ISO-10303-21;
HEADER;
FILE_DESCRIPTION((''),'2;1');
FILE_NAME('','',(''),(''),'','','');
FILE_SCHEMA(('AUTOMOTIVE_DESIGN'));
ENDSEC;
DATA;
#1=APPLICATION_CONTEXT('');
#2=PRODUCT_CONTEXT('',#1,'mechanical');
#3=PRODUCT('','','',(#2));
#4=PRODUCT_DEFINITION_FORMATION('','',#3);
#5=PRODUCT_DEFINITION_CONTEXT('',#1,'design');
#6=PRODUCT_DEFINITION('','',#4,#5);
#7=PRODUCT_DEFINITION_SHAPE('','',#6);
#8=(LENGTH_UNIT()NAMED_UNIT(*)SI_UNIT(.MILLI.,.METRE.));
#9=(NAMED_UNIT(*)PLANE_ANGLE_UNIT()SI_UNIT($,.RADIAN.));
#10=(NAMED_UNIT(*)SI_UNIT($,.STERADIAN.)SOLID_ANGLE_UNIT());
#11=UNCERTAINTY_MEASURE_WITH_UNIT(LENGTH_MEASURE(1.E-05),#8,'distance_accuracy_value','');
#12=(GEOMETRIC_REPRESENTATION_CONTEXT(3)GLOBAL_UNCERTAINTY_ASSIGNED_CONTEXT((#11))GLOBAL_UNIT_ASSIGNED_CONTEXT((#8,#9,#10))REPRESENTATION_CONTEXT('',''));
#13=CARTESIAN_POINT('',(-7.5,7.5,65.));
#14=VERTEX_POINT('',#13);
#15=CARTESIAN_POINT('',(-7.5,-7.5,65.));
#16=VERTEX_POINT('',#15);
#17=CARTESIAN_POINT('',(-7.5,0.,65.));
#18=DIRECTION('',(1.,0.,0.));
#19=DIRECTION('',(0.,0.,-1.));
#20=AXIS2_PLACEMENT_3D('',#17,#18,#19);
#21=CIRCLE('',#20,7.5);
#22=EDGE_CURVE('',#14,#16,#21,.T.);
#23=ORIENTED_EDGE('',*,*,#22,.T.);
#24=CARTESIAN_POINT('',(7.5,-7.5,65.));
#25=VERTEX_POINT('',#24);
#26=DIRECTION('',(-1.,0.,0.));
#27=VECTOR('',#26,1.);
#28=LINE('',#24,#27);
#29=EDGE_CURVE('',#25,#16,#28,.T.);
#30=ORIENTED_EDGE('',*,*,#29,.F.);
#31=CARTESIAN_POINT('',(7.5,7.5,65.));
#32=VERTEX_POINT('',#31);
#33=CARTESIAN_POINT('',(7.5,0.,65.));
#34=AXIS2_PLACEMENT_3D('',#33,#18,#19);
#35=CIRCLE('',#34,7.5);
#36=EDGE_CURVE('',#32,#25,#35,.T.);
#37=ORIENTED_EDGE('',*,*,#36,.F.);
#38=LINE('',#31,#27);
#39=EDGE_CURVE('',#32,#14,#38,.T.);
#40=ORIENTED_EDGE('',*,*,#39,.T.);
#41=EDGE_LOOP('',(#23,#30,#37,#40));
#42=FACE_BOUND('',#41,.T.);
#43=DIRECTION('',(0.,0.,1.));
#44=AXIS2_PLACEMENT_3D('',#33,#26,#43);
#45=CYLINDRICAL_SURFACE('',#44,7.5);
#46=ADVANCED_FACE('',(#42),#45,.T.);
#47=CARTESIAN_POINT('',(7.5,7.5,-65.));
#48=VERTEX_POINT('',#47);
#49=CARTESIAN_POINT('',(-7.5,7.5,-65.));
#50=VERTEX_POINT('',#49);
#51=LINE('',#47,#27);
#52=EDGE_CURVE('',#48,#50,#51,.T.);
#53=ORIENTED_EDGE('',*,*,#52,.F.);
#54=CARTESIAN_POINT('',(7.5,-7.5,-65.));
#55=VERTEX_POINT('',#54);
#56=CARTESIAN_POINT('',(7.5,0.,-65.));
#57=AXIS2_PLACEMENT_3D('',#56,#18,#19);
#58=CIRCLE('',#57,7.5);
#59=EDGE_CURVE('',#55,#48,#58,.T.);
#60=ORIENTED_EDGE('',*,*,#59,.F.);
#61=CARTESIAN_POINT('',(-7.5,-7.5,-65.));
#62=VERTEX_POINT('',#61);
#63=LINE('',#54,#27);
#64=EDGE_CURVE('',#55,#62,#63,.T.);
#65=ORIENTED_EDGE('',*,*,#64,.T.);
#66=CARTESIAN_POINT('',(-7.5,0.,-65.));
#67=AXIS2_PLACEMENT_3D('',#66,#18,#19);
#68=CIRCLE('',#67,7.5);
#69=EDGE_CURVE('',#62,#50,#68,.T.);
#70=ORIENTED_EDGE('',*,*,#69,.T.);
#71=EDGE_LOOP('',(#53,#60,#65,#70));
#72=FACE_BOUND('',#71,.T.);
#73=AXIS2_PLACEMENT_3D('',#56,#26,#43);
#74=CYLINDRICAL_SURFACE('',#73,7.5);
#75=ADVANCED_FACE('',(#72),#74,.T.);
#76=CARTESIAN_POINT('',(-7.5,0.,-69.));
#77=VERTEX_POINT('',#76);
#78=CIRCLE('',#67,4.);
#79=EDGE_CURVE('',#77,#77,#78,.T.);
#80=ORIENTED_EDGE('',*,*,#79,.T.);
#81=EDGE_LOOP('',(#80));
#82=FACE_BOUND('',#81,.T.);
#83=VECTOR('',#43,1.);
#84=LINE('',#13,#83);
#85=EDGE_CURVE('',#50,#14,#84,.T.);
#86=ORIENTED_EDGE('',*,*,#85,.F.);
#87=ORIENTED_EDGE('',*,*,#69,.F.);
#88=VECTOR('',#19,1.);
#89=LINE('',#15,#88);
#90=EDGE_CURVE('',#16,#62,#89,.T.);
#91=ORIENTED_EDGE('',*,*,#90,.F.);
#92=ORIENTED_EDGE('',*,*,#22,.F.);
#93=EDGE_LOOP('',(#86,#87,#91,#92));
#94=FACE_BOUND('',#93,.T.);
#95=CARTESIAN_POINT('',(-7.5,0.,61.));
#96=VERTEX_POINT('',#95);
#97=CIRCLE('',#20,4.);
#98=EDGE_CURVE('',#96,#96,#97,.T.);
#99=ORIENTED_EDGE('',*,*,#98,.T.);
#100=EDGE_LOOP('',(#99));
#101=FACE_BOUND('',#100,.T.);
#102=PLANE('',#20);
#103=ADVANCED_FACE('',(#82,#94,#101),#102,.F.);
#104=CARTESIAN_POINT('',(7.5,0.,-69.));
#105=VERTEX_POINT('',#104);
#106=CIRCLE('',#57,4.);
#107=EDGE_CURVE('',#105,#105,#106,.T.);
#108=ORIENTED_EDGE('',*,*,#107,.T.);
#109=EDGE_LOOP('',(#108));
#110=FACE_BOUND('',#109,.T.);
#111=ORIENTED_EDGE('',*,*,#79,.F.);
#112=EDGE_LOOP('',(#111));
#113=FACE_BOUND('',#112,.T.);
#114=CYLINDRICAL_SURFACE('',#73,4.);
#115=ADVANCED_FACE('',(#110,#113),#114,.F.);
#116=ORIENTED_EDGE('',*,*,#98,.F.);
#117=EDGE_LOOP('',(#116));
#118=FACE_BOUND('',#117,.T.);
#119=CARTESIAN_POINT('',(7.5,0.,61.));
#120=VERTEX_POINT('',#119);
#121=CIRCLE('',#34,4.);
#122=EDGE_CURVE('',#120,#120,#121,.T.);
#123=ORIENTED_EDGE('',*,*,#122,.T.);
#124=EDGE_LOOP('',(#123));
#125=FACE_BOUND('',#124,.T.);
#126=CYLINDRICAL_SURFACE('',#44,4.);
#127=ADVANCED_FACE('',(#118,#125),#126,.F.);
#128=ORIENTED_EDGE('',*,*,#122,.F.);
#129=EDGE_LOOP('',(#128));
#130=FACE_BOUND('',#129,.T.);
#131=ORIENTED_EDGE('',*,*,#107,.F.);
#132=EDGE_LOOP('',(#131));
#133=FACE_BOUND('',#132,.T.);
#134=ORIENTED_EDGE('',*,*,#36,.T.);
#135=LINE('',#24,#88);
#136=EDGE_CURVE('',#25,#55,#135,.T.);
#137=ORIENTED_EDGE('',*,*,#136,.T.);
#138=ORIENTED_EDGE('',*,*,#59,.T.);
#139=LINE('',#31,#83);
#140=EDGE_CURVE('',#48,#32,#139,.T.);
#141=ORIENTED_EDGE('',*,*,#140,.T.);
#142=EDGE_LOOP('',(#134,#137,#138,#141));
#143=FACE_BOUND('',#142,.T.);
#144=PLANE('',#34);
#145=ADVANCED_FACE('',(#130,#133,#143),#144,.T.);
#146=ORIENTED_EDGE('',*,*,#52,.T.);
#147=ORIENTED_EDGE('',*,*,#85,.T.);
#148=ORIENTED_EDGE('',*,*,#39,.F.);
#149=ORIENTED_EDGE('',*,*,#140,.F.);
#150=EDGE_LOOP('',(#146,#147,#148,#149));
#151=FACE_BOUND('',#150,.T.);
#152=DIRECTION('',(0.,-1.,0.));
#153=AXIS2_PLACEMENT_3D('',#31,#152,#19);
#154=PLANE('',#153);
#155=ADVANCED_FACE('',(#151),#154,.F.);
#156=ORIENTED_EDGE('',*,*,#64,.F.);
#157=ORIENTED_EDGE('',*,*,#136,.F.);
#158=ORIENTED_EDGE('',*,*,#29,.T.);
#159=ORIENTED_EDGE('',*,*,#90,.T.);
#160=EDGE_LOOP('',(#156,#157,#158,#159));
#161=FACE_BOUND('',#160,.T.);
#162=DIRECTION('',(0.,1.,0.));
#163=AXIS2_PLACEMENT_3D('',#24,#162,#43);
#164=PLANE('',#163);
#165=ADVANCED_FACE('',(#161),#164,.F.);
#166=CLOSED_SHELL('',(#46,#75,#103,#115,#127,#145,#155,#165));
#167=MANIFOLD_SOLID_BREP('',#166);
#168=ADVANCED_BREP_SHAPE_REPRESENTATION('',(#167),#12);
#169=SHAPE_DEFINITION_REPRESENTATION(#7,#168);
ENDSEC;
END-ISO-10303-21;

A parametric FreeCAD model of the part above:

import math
import FreeCAD as App
import Part
import Sketcher
from FreeCAD import Vector
Q = App.Units.Quantity

doc = App.newDocument("Part")
body = doc.addObject("PartDesign::Body", "Body")

# Sketch on YZ plane
sketch1 = doc.addObject("Sketcher::SketchObject", "Sketch")
body.addObject(sketch1)
sketch1.AttachmentSupport = (doc.YZ_Plane, [""])
sketch1.MapMode = "FlatFace"
sketch1.addGeometry([
    Part.LineSegment(Vector(7.5, -65, 0), Vector(7.5, 65, 0)),  # 0
    Part.ArcOfCircle(Part.Circle(Vector(0, 65, 0), Vector(0, 0, 1), 7.5), math.radians(0), math.radians(180)),  # 1
    Part.LineSegment(Vector(-7.5, 65, 0), Vector(-7.5, -65, 0)),  # 2
    Part.ArcOfCircle(Part.Circle(Vector(0, -65, 0), Vector(0, 0, 1), 7.5), math.radians(180), math.radians(360)),  # 3
    Part.Circle(Vector(0, -65, 0), Vector(0, 0, 1), 4),  # 4
    Part.Circle(Vector(0, 65, 0), Vector(0, 0, 1), 4),  # 5
], False)
sketch1.addConstraint([
    Sketcher.Constraint("Tangent", 0, 2, 1, 1),
    Sketcher.Constraint("Tangent", 1, 2, 2, 1),
    Sketcher.Constraint("Tangent", 2, 2, 3, 1),
    Sketcher.Constraint("Tangent", 3, 2, 0, 1),
    Sketcher.Constraint("Vertical", 0),
    Sketcher.Constraint("Vertical", 2),
    Sketcher.Constraint("Coincident", 4, 3, 3, 3),
    Sketcher.Constraint("Coincident", 5, 3, 1, 3),
    Sketcher.Constraint("Equal", 4, 5),
    Sketcher.Constraint("Symmetric", 1, 3, 3, 3, -1, 1),
    Sketcher.Constraint("Diameter", 4, Q("8 mm")),
    Sketcher.Constraint("Radius", 1, Q("7.5 mm")),
    Sketcher.Constraint("DistanceY", 0, 1, 0, 2, Q("130 mm")),
])
pad1 = doc.addObject("PartDesign::Pad", "Pad")
body.addObject(pad1)
pad1.Profile = sketch1
pad1.Length = 15
pad1.Midplane = True

doc.recompute()
